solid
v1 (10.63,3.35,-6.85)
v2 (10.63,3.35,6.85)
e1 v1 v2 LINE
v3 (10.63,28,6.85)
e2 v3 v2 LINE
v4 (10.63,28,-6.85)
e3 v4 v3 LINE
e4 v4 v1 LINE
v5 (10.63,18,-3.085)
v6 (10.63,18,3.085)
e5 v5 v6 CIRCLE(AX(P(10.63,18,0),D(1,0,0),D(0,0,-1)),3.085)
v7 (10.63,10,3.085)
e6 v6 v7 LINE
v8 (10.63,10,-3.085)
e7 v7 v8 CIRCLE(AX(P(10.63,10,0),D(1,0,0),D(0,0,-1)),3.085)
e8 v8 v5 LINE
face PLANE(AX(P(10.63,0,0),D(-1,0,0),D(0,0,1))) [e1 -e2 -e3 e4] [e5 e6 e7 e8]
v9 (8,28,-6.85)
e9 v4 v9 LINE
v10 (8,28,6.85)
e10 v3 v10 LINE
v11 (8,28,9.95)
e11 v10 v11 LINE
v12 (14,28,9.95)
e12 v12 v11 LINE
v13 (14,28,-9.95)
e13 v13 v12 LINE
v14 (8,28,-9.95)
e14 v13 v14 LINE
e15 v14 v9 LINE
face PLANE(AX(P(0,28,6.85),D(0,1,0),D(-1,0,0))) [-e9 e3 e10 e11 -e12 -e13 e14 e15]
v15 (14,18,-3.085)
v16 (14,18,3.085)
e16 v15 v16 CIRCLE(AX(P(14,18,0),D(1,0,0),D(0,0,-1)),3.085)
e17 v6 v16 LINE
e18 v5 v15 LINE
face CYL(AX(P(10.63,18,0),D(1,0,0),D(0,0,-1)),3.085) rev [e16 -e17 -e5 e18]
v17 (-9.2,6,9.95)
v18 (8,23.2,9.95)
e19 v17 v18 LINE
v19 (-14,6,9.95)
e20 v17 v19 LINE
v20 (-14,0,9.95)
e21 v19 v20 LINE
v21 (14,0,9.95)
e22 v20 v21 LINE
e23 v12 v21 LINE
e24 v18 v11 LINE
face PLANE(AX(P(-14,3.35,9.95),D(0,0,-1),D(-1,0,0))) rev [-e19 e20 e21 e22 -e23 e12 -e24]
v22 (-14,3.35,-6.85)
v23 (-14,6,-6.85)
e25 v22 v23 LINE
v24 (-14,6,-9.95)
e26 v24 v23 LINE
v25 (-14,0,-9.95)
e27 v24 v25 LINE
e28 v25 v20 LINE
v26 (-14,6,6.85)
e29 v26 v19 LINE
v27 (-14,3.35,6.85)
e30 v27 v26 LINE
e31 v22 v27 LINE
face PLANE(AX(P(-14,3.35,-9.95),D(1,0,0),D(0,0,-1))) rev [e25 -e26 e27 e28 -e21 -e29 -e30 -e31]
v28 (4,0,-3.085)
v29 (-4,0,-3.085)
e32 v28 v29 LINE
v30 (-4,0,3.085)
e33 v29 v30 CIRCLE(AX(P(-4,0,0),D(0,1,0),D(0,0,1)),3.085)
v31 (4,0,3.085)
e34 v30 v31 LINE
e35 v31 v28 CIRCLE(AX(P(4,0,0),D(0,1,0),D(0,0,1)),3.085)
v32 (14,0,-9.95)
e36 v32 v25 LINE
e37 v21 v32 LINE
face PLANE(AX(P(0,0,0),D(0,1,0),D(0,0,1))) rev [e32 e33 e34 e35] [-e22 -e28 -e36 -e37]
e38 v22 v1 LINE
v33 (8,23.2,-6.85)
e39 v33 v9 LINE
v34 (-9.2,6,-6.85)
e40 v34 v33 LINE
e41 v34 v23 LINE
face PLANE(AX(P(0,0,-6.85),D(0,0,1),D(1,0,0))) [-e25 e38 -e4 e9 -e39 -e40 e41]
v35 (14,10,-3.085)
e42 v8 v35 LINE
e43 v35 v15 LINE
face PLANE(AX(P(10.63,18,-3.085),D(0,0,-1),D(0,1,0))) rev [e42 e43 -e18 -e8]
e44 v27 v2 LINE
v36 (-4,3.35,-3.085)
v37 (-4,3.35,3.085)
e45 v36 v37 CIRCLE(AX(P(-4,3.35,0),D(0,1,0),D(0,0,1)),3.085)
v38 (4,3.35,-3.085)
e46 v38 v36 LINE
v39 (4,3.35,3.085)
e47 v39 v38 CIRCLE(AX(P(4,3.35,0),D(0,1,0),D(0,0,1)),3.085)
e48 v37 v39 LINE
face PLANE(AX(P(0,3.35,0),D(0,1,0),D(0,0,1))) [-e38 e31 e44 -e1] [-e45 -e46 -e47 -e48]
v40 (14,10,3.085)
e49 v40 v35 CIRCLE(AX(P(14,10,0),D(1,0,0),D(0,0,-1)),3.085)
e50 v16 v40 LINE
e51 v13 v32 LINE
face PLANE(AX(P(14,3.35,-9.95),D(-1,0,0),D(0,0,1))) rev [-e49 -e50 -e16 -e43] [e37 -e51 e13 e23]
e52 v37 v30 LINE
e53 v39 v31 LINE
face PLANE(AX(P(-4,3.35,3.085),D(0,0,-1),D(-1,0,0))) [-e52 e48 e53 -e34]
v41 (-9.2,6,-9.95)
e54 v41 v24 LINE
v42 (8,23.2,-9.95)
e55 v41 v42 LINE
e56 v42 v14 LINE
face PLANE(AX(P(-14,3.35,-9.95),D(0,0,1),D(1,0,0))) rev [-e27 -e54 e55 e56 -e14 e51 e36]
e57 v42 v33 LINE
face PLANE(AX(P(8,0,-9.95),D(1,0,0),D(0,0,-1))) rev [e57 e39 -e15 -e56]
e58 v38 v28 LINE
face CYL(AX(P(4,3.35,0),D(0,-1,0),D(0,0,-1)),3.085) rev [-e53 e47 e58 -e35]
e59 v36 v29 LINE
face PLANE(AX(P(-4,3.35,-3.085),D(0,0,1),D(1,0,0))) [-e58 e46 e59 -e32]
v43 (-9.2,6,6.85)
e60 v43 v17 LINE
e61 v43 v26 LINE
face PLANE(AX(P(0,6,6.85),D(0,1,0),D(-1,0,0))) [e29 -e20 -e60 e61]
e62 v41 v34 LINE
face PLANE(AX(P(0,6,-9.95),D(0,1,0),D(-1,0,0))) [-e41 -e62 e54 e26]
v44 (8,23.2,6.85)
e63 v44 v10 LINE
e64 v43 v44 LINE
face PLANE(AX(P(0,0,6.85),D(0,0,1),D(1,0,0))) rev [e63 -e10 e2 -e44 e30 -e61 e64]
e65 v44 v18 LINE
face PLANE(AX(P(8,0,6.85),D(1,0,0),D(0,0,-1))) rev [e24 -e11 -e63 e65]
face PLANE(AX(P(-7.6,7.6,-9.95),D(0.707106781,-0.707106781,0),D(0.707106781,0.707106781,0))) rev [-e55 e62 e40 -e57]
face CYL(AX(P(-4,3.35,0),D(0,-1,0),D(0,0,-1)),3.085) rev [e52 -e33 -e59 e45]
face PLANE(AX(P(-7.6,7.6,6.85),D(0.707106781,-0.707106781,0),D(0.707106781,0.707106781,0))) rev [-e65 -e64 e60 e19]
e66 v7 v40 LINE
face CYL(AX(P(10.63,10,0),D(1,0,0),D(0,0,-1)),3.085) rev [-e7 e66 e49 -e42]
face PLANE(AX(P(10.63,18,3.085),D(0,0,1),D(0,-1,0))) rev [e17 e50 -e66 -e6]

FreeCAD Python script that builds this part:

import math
import FreeCAD as App
import Part
import Sketcher
from FreeCAD import Vector
Q = App.Units.Quantity


def add_polygon(sketch, points):
    """Adds a closed chain of lines whose ends are joined by coincident constraints."""
    first, n = sketch.GeometryCount, len(points)
    for a, b in zip(points, points[1:] + points[:1]):
        sketch.addGeometry(Part.LineSegment(App.Vector(*a, 0), App.Vector(*b, 0)), False)
    for i in range(n):
        sketch.addConstraint(Sketcher.Constraint("Coincident", first + i, 2, first + (i + 1) % n, 1))

doc = App.newDocument("Part")
body = doc.addObject("PartDesign::Body", "Body")

sketch1 = body.newObject("Sketcher::SketchObject", "Sketch")
sketch1.AttachmentSupport = (doc.getObject("XZ_Plane"), [""])
sketch1.MapMode = "FlatFace"
add_polygon(sketch1, [(-14, -9.9), (-14, 9.9), (14, 9.9), (14, -9.9)])
sketch1.addGeometry(Part.ArcOfCircle(Part.Circle(Vector(-4, 0, 0), Vector(0, 0, 1), 3.1), math.radians(90), math.radians(270)), False)
sketch1.addGeometry(Part.LineSegment(Vector(-4, -3.1, 0), Vector(4, -3.1, 0)), False)
sketch1.addGeometry(Part.ArcOfCircle(Part.Circle(Vector(4, 0, 0), Vector(0, 0, 1), 3.1), math.radians(-90), math.radians(90)), False)
sketch1.addGeometry(Part.LineSegment(Vector(4, 3.1, 0), Vector(-4, 3.1, 0)), False)
sketch1.addConstraint([
    Sketcher.Constraint("Tangent", 4, 2, 5, 1),
    Sketcher.Constraint("Tangent", 5, 2, 6, 1),
    Sketcher.Constraint("Tangent", 6, 2, 7, 1),
    Sketcher.Constraint("Tangent", 7, 2, 4, 1),
    Sketcher.Constraint("Vertical", 0),
    Sketcher.Constraint("Horizontal", 1),
    Sketcher.Constraint("Vertical", 2),
    Sketcher.Constraint("Horizontal", 3),
    Sketcher.Constraint("Horizontal", 5),
    Sketcher.Constraint("Horizontal", 7),
    Sketcher.Constraint("Symmetric", 4, 3, 6, 3, -1, 1),
    Sketcher.Constraint("Symmetric", 0, 2, 2, 2, -1, 1),
    Sketcher.Constraint("DistanceX", 1, 1, 1, 2, Q("28 mm")),
    Sketcher.Constraint("DistanceX", 5, 1, 5, 2, Q("8 mm")),
    Sketcher.Constraint("DistanceY", 0, 1, 0, 2, Q("19.9 mm")),
    Sketcher.Constraint("Radius", 4, Q("3.085 mm")),
])
pad1 = body.newObject("PartDesign::Pad", "Pad")
pad1.Profile = sketch1
pad1.Length = 3.35
pad1.Reversed = True

sketch2 = body.newObject("Sketcher::SketchObject", "Sketch001")
sketch2.AttachmentSupport = (doc.getObject("XY_Plane"), [""])
sketch2.MapMode = "FlatFace"
sketch2.AttachmentOffset = App.Placement(Vector(0, 0, 9.95), App.Rotation())
add_polygon(sketch2, [(14, 28), (8, 28), (8, 23.2), (-9.2, 6), (-14, 6), (-14, 0), (14, 0)])
sketch2.addConstraint([
    Sketcher.Constraint("Horizontal", 0),
    Sketcher.Constraint("Vertical", 1),
    Sketcher.Constraint("Horizontal", 3),
    Sketcher.Constraint("Vertical", 4),
    Sketcher.Constraint("Horizontal", 5),
    Sketcher.Constraint("Vertical", 6),
    Sketcher.Constraint("Symmetric", 4, 2, 5, 2, -1, 1),
    Sketcher.Constraint("Equal", 3, 1),
    Sketcher.Constraint("Equal", 0, 4),
    Sketcher.Constraint("Equal", 5, 6),
    Sketcher.Constraint("DistanceX", 0, 2, 0, 1, Q("6 mm")),
    Sketcher.Constraint("DistanceX", 5, 1, 5, 2, Q("28 mm")),
    Sketcher.Constraint("DistanceX", 3, 2, 3, 1, Q("4.8 mm")),
])
pad2 = body.newObject("PartDesign::Pad", "Pad001")
pad2.Profile = sketch2
pad2.Length = 3.1
pad2.Reversed = True

sketch3 = body.newObject("Sketcher::SketchObject", "Sketch002")
sketch3.AttachmentSupport = (doc.getObject("XY_Plane"), [""])
sketch3.MapMode = "FlatFace"
sketch3.AttachmentOffset = App.Placement(Vector(0, 0, -6.85), App.Rotation())
add_polygon(sketch3, [(14, 28), (8, 28), (8, 23.2), (-9.2, 6), (-14, 6), (-14, 0), (14, 0)])
sketch3.addConstraint([
    Sketcher.Constraint("Horizontal", 0),
    Sketcher.Constraint("Vertical", 1),
    Sketcher.Constraint("Horizontal", 3),
    Sketcher.Constraint("Vertical", 4),
    Sketcher.Constraint("Horizontal", 5),
    Sketcher.Constraint("Vertical", 6),
    Sketcher.Constraint("Symmetric", 4, 2, 5, 2, -1, 1),
    Sketcher.Constraint("Equal", 3, 1),
    Sketcher.Constraint("Equal", 0, 4),
    Sketcher.Constraint("Equal", 5, 6),
    Sketcher.Constraint("DistanceX", 0, 2, 0, 1, Q("6 mm")),
    Sketcher.Constraint("DistanceX", 5, 1, 5, 2, Q("28 mm")),
    Sketcher.Constraint("DistanceX", 3, 2, 3, 1, Q("4.8 mm")),
])
pad3 = body.newObject("PartDesign::Pad", "Pad002")
pad3.Profile = sketch3
pad3.Length = 3.1
pad3.Reversed = True

sketch4 = body.newObject("Sketcher::SketchObject", "Sketch003")
sketch4.AttachmentSupport = (doc.getObject("YZ_Plane"), [""])
sketch4.MapMode = "FlatFace"
sketch4.AttachmentOffset = App.Placement(Vector(0, 0, 14), App.Rotation())
add_polygon(sketch4, [(28, 9.9), (0, 9.9), (0, -9.9), (28, -9.9)])
sketch4.addGeometry(Part.ArcOfCircle(Part.Circle(Vector(18, 0, 0), Vector(0, 0, 1), 3.1), math.radians(-90), math.radians(90)), False)
sketch4.addGeometry(Part.LineSegment(Vector(18, -3.1, 0), Vector(10, -3.1, 0)), False)
sketch4.addGeometry(Part.ArcOfCircle(Part.Circle(Vector(10, 0, 0), Vector(0, 0, 1), 3.1), math.radians(90), math.radians(270)), False)
sketch4.addGeometry(Part.LineSegment(Vector(10, 3.1, 0), Vector(18, 3.1, 0)), False)
sketch4.addConstraint([
    Sketcher.Constraint("Tangent", 4, 1, 5, 1),
    Sketcher.Constraint("Tangent", 5, 2, 6, 2),
    Sketcher.Constraint("Tangent", 6, 1, 7, 1),
    Sketcher.Constraint("Tangent", 7, 2, 4, 2),
    Sketcher.Constraint("Horizontal", 0),
    Sketcher.Constraint("Vertical", 1),
    Sketcher.Constraint("Horizontal", 2),
    Sketcher.Constraint("Vertical", 3),
    Sketcher.Constraint("Horizontal", 5),
    Sketcher.Constraint("Horizontal", 7),
    Sketcher.Constraint("Symmetric", 0, 2, 1, 2, -1, 1),
    Sketcher.Constraint("PointOnObject", 4, 3, -1),
    Sketcher.Constraint("DistanceX", 0, 2, 0, 1, Q("28 mm")),
    Sketcher.Constraint("DistanceX", 5, 2, 5, 1, Q("8 mm")),
    Sketcher.Constraint("DistanceY", 1, 2, 1, 1, Q("19.9 mm")),
    Sketcher.Constraint("DistanceX", -1, 1, 4, 3, Q("18 mm")),
    Sketcher.Constraint("Radius", 4, Q("3.085 mm")),
])
pad4 = body.newObject("PartDesign::Pad", "Pad003")
pad4.Profile = sketch4
pad4.Length = 3.37
pad4.Reversed = True

doc.recompute()
